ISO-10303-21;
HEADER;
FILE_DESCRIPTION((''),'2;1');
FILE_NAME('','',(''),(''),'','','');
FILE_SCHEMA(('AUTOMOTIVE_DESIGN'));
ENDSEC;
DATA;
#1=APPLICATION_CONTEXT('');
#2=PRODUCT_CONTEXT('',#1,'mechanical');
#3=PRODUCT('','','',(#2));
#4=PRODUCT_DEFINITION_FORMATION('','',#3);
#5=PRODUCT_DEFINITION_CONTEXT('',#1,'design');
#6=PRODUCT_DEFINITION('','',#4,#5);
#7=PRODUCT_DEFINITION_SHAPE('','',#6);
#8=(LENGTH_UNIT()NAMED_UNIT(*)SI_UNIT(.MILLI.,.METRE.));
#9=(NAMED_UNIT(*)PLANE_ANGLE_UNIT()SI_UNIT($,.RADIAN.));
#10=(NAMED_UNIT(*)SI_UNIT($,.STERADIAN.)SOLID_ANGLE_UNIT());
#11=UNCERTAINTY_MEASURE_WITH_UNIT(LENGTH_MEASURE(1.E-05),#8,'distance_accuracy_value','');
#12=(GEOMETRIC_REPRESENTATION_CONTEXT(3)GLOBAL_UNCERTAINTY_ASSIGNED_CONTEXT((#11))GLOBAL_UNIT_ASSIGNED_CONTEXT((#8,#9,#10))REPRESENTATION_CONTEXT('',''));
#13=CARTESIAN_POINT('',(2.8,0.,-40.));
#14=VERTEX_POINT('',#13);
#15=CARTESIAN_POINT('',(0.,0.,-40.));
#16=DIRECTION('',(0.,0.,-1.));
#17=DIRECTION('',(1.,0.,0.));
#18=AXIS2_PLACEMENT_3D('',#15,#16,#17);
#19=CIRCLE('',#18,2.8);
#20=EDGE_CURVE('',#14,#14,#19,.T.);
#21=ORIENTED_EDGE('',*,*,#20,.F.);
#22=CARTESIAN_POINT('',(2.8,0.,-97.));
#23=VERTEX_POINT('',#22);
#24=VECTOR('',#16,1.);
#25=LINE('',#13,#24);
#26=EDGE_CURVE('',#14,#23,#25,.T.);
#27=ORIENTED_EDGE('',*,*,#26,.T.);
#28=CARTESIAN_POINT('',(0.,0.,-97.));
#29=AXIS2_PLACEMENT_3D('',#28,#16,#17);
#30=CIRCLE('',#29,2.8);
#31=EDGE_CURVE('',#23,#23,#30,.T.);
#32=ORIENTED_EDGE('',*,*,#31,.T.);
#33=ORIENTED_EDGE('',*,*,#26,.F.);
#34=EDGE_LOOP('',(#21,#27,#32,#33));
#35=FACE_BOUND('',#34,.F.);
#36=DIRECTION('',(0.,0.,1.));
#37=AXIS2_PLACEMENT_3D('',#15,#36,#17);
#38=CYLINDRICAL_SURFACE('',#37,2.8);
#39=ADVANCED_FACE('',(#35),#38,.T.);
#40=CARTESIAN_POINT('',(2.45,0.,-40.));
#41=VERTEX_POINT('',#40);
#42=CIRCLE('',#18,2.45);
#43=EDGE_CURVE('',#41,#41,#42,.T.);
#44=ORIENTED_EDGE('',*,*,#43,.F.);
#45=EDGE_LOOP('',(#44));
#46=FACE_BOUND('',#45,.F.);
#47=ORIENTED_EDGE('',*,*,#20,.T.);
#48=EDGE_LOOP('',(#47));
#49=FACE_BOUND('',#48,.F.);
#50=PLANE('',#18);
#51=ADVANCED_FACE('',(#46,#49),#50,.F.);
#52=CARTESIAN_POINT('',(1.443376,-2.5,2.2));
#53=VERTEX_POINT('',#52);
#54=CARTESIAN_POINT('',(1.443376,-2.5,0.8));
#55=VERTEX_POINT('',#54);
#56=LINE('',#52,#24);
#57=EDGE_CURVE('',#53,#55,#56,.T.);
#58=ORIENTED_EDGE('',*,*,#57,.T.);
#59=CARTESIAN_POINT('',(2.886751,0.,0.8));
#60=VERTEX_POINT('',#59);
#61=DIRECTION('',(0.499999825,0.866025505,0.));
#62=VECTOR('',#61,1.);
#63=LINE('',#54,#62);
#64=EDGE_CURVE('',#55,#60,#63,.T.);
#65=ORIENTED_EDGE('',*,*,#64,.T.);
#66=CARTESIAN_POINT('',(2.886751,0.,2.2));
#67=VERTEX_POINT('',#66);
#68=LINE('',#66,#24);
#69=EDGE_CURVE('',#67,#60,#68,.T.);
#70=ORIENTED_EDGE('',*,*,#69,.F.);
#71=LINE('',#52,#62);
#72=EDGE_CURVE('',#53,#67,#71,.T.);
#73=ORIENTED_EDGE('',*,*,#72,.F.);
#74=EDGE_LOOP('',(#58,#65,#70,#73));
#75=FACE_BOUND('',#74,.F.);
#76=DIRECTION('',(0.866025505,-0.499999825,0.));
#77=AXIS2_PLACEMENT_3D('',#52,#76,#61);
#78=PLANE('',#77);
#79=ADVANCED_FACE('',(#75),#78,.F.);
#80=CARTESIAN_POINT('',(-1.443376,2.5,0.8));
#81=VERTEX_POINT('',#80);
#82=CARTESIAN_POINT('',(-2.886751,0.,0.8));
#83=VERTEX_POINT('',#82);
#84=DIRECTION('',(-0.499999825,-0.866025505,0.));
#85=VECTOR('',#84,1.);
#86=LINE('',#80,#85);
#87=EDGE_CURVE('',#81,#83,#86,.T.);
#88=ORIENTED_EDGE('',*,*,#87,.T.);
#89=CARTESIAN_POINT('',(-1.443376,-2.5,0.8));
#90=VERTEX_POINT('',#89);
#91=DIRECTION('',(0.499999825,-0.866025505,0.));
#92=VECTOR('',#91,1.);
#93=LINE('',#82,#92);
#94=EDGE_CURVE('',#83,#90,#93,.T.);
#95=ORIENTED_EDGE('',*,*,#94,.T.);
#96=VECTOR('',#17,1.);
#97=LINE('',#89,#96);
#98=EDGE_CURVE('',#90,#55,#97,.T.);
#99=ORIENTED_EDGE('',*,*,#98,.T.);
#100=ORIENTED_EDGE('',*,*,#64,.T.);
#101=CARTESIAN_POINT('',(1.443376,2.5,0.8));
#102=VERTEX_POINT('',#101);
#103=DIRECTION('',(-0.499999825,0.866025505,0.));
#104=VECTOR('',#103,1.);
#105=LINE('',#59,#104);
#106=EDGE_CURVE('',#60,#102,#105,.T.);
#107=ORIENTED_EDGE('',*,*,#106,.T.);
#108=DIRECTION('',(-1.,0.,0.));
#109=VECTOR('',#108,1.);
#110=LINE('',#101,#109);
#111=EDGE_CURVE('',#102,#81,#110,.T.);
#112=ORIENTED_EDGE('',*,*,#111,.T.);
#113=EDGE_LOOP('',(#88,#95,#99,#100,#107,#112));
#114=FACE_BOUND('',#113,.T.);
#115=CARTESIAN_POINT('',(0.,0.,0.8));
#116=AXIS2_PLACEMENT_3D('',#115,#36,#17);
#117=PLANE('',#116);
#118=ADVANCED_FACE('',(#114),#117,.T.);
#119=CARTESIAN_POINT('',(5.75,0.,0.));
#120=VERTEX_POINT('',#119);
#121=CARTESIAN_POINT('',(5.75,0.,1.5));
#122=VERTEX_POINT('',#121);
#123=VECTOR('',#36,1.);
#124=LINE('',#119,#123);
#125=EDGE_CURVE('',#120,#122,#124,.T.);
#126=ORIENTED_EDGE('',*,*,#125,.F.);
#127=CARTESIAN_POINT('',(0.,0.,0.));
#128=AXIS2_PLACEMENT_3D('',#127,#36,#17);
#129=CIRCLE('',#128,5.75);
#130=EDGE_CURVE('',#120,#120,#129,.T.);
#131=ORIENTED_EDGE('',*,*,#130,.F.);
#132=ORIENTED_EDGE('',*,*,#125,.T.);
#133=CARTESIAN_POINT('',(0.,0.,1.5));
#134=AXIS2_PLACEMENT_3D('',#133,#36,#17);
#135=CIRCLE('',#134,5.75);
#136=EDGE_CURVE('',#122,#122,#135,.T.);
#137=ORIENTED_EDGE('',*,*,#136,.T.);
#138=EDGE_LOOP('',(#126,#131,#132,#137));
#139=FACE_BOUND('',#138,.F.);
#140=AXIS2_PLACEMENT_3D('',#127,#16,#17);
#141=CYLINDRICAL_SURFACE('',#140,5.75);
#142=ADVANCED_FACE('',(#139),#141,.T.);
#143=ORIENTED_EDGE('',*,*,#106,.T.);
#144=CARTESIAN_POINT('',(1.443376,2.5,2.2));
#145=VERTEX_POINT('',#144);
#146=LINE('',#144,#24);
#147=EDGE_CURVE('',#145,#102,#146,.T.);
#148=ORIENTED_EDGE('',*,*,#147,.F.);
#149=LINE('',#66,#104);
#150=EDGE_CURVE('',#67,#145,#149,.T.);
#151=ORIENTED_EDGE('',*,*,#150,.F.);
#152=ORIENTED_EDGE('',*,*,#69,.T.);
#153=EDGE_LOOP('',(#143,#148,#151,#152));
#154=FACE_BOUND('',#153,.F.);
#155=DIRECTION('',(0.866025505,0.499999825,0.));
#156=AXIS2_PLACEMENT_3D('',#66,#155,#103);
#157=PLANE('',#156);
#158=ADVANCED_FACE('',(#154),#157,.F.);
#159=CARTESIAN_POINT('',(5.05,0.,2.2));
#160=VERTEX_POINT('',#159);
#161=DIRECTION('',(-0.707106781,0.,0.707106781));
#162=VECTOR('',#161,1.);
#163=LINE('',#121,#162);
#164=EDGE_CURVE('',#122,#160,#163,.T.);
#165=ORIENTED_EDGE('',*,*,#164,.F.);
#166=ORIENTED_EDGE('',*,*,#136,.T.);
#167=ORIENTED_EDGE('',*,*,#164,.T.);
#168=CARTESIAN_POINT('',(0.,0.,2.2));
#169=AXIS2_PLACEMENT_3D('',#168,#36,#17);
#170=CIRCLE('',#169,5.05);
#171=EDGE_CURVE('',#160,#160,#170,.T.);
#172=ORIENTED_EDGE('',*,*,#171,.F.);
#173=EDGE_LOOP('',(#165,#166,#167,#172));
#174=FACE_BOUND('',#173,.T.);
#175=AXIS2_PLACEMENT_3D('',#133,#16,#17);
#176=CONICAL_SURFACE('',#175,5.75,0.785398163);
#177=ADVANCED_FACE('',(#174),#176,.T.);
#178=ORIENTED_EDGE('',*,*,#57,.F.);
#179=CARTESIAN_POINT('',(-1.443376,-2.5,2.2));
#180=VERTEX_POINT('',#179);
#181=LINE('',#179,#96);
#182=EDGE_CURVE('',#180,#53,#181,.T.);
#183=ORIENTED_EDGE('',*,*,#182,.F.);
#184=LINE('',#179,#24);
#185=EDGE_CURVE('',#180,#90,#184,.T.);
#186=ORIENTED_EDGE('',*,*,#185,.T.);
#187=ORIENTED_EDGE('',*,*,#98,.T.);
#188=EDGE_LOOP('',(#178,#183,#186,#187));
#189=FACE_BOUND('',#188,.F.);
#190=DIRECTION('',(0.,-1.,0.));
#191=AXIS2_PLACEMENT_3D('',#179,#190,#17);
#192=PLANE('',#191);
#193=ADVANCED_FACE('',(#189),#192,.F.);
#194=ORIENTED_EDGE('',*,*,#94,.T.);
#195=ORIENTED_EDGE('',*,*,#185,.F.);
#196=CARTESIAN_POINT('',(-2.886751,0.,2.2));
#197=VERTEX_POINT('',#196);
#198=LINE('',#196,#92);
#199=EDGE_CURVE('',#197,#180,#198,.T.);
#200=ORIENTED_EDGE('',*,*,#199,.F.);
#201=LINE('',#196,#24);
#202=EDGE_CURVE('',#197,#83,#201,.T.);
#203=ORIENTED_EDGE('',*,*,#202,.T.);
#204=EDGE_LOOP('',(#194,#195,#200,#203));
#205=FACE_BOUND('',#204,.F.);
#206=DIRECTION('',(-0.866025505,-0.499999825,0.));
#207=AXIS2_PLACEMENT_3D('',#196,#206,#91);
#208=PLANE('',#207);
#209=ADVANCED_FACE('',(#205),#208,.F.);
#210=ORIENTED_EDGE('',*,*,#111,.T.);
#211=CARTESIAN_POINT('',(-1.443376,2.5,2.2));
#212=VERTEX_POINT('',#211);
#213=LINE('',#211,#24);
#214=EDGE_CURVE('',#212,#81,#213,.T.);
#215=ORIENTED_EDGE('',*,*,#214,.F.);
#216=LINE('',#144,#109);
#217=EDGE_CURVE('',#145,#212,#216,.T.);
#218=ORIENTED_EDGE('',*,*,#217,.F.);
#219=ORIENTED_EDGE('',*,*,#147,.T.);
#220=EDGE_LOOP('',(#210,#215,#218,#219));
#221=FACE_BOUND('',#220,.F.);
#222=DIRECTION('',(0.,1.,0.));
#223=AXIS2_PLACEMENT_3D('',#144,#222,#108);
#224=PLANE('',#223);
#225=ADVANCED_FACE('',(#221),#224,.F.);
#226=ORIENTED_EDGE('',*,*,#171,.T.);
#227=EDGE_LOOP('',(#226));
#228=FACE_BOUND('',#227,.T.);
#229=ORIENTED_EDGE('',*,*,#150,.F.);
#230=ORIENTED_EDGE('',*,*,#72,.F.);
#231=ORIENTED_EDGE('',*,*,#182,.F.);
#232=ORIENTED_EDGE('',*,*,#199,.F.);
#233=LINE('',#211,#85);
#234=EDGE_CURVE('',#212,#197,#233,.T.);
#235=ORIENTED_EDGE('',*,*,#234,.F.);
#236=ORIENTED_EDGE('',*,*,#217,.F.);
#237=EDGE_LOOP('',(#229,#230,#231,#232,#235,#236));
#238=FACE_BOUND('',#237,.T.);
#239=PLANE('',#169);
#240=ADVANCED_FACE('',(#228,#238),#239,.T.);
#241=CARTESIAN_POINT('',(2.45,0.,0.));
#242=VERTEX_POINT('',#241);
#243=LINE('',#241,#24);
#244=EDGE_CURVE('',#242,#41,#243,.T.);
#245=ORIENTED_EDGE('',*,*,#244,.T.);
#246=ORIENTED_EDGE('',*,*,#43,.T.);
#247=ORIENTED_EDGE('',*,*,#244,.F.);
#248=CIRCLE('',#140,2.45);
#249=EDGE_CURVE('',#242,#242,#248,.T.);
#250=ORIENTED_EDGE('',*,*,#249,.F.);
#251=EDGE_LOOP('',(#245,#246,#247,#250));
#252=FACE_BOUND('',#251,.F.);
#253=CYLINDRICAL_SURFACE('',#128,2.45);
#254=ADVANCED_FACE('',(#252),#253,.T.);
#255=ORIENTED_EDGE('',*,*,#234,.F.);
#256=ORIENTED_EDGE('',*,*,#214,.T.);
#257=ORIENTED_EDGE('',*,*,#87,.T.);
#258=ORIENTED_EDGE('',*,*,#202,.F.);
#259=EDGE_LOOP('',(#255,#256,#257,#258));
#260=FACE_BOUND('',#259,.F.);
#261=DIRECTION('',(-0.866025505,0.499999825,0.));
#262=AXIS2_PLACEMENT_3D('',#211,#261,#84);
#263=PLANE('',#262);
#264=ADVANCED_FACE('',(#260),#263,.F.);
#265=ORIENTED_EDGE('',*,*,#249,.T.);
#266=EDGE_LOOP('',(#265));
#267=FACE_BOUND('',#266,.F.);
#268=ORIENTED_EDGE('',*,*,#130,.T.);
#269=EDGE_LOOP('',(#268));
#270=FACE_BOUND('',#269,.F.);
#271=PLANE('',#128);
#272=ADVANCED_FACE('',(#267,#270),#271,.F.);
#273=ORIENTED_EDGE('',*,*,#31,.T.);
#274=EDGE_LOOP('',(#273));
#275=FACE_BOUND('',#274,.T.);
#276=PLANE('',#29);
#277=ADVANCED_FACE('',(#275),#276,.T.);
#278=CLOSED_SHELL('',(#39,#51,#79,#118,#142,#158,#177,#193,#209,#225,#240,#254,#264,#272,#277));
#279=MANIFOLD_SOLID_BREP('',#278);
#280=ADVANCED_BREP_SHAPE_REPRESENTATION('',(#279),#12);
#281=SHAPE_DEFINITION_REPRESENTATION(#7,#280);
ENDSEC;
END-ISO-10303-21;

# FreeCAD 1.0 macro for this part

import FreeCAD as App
import Part
import Sketcher
Q = App.Units.Quantity


def edges_at(feature, points):
    """Names of the edges that pass closest to the given points."""
    edges = feature.Shape.Edges
    near = lambda p: min(range(len(edges)), key=lambda i: edges[i].distToShape(Part.Vertex(*p))[0])
    return sorted({f"Edge{near(p) + 1}" for p in points})

doc = App.newDocument("Part")
body = doc.addObject("PartDesign::Body", "Body")

# Sketch on XY plane
sketch1 = body.newObject("Sketcher::SketchObject", "Sketch")
sketch1.AttachmentSupport = (doc.getObject("XY_Plane"), [""])
sketch1.MapMode = "FlatFace"
sketch1.addGeometry(Part.Circle(App.Vector(0, 0, 0), App.Vector(0, 0, 1), 5.75), False)
sketch1.addConstraint([
    Sketcher.Constraint("Coincident", 0, 3, -1, 1),
    Sketcher.Constraint("Diameter", 0, 11.5),
])
pad1 = body.newObject("PartDesign::Pad", "Pad")
pad1.Profile = sketch1
pad1.Length = 2.2

# Sketch on XY plane
sketch2 = body.newObject("Sketcher::SketchObject", "Sketch001")
sketch2.AttachmentSupport = (doc.getObject("XY_Plane"), [""])
sketch2.MapMode = "FlatFace"
sketch2.AttachmentOffset = App.Placement(App.Vector(0, 0, 2.2), App.Rotation())
sketch2.addGeometry([
    Part.LineSegment(App.Vector(2.886751, 0, 0), App.Vector(1.443376, 2.5, 0)),  # 0
    Part.LineSegment(App.Vector(1.443376, 2.5, 0), App.Vector(-1.443376, 2.5, 0)),  # 1
    Part.LineSegment(App.Vector(-1.443376, 2.5, 0), App.Vector(-2.886751, 0, 0)),  # 2
    Part.LineSegment(App.Vector(-2.886751, 0, 0), App.Vector(-1.443376, -2.5, 0)),  # 3
    Part.LineSegment(App.Vector(-1.443376, -2.5, 0), App.Vector(1.443376, -2.5, 0)),  # 4
    Part.LineSegment(App.Vector(1.443376, -2.5, 0), App.Vector(2.886751, 0, 0)),  # 5
], False)
sketch2.addConstraint([
    Sketcher.Constraint("Coincident", 0, 2, 1, 1),
    Sketcher.Constraint("Coincident", 1, 2, 2, 1),
    Sketcher.Constraint("Coincident", 2, 2, 3, 1),
    Sketcher.Constraint("Coincident", 3, 2, 4, 1),
    Sketcher.Constraint("Coincident", 4, 2, 5, 1),
    Sketcher.Constraint("Coincident", 5, 2, 0, 1),
    Sketcher.Constraint("Horizontal", 1),
    Sketcher.Constraint("Horizontal", 4),
    Sketcher.Constraint("Symmetric", 0, 2, 3, 2, -1, 1),
    Sketcher.Constraint("Symmetric", 2, 2, 5, 2, -1, 1),
    Sketcher.Constraint("PointOnObject", 2, 2, -1),
    Sketcher.Constraint("Parallel", 2, 5),
    Sketcher.Constraint("Vertical", 1, 2, 3, 2),
    Sketcher.Constraint("Angle", 0, Q("119.999988 deg")),
    Sketcher.Constraint("DistanceY", 3, 2, 1, 2, 5.0),
    Sketcher.Constraint("DistanceX", 1, 2, 1, 1, 2.886752),
])
pocket1 = body.newObject("PartDesign::Pocket", "Pocket")
pocket1.Profile = sketch2
pocket1.Length = 1.4
doc.recompute()

chamfer = body.newObject("PartDesign::Chamfer", "Chamfer")
chamfer.Base = (pocket1, edges_at(pocket1, [(-5.75, 0, 2.2)]))
chamfer.Size = 0.7

# Sketch on XY plane
sketch3 = body.newObject("Sketcher::SketchObject", "Sketch002")
sketch3.AttachmentSupport = (doc.getObject("XY_Plane"), [""])
sketch3.MapMode = "FlatFace"
sketch3.addGeometry(Part.Circle(App.Vector(0, 0, 0), App.Vector(0, 0, 1), 2.45), False)
sketch3.addConstraint([
    Sketcher.Constraint("Coincident", 0, 3, -1, 1),
    Sketcher.Constraint("Diameter", 0, 4.9),
])
pad2 = body.newObject("PartDesign::Pad", "Pad001")
pad2.Profile = sketch3
pad2.Length = 40
pad2.Reversed = True

# Sketch on XY plane
sketch4 = body.newObject("Sketcher::SketchObject", "Sketch003")
sketch4.AttachmentSupport = (doc.getObject("XY_Plane"), [""])
sketch4.MapMode = "FlatFace"
sketch4.AttachmentOffset = App.Placement(App.Vector(0, 0, -40), App.Rotation())
sketch4.addGeometry(Part.Circle(App.Vector(0, 0, 0), App.Vector(0, 0, 1), 2.8), False)
sketch4.addConstraint([
    Sketcher.Constraint("Coincident", 0, 3, -1, 1),
    Sketcher.Constraint("Diameter", 0, 5.6),
])
pad3 = body.newObject("PartDesign::Pad", "Pad002")
pad3.Profile = sketch4
pad3.Length = 57
pad3.Reversed = True

doc.recompute()
